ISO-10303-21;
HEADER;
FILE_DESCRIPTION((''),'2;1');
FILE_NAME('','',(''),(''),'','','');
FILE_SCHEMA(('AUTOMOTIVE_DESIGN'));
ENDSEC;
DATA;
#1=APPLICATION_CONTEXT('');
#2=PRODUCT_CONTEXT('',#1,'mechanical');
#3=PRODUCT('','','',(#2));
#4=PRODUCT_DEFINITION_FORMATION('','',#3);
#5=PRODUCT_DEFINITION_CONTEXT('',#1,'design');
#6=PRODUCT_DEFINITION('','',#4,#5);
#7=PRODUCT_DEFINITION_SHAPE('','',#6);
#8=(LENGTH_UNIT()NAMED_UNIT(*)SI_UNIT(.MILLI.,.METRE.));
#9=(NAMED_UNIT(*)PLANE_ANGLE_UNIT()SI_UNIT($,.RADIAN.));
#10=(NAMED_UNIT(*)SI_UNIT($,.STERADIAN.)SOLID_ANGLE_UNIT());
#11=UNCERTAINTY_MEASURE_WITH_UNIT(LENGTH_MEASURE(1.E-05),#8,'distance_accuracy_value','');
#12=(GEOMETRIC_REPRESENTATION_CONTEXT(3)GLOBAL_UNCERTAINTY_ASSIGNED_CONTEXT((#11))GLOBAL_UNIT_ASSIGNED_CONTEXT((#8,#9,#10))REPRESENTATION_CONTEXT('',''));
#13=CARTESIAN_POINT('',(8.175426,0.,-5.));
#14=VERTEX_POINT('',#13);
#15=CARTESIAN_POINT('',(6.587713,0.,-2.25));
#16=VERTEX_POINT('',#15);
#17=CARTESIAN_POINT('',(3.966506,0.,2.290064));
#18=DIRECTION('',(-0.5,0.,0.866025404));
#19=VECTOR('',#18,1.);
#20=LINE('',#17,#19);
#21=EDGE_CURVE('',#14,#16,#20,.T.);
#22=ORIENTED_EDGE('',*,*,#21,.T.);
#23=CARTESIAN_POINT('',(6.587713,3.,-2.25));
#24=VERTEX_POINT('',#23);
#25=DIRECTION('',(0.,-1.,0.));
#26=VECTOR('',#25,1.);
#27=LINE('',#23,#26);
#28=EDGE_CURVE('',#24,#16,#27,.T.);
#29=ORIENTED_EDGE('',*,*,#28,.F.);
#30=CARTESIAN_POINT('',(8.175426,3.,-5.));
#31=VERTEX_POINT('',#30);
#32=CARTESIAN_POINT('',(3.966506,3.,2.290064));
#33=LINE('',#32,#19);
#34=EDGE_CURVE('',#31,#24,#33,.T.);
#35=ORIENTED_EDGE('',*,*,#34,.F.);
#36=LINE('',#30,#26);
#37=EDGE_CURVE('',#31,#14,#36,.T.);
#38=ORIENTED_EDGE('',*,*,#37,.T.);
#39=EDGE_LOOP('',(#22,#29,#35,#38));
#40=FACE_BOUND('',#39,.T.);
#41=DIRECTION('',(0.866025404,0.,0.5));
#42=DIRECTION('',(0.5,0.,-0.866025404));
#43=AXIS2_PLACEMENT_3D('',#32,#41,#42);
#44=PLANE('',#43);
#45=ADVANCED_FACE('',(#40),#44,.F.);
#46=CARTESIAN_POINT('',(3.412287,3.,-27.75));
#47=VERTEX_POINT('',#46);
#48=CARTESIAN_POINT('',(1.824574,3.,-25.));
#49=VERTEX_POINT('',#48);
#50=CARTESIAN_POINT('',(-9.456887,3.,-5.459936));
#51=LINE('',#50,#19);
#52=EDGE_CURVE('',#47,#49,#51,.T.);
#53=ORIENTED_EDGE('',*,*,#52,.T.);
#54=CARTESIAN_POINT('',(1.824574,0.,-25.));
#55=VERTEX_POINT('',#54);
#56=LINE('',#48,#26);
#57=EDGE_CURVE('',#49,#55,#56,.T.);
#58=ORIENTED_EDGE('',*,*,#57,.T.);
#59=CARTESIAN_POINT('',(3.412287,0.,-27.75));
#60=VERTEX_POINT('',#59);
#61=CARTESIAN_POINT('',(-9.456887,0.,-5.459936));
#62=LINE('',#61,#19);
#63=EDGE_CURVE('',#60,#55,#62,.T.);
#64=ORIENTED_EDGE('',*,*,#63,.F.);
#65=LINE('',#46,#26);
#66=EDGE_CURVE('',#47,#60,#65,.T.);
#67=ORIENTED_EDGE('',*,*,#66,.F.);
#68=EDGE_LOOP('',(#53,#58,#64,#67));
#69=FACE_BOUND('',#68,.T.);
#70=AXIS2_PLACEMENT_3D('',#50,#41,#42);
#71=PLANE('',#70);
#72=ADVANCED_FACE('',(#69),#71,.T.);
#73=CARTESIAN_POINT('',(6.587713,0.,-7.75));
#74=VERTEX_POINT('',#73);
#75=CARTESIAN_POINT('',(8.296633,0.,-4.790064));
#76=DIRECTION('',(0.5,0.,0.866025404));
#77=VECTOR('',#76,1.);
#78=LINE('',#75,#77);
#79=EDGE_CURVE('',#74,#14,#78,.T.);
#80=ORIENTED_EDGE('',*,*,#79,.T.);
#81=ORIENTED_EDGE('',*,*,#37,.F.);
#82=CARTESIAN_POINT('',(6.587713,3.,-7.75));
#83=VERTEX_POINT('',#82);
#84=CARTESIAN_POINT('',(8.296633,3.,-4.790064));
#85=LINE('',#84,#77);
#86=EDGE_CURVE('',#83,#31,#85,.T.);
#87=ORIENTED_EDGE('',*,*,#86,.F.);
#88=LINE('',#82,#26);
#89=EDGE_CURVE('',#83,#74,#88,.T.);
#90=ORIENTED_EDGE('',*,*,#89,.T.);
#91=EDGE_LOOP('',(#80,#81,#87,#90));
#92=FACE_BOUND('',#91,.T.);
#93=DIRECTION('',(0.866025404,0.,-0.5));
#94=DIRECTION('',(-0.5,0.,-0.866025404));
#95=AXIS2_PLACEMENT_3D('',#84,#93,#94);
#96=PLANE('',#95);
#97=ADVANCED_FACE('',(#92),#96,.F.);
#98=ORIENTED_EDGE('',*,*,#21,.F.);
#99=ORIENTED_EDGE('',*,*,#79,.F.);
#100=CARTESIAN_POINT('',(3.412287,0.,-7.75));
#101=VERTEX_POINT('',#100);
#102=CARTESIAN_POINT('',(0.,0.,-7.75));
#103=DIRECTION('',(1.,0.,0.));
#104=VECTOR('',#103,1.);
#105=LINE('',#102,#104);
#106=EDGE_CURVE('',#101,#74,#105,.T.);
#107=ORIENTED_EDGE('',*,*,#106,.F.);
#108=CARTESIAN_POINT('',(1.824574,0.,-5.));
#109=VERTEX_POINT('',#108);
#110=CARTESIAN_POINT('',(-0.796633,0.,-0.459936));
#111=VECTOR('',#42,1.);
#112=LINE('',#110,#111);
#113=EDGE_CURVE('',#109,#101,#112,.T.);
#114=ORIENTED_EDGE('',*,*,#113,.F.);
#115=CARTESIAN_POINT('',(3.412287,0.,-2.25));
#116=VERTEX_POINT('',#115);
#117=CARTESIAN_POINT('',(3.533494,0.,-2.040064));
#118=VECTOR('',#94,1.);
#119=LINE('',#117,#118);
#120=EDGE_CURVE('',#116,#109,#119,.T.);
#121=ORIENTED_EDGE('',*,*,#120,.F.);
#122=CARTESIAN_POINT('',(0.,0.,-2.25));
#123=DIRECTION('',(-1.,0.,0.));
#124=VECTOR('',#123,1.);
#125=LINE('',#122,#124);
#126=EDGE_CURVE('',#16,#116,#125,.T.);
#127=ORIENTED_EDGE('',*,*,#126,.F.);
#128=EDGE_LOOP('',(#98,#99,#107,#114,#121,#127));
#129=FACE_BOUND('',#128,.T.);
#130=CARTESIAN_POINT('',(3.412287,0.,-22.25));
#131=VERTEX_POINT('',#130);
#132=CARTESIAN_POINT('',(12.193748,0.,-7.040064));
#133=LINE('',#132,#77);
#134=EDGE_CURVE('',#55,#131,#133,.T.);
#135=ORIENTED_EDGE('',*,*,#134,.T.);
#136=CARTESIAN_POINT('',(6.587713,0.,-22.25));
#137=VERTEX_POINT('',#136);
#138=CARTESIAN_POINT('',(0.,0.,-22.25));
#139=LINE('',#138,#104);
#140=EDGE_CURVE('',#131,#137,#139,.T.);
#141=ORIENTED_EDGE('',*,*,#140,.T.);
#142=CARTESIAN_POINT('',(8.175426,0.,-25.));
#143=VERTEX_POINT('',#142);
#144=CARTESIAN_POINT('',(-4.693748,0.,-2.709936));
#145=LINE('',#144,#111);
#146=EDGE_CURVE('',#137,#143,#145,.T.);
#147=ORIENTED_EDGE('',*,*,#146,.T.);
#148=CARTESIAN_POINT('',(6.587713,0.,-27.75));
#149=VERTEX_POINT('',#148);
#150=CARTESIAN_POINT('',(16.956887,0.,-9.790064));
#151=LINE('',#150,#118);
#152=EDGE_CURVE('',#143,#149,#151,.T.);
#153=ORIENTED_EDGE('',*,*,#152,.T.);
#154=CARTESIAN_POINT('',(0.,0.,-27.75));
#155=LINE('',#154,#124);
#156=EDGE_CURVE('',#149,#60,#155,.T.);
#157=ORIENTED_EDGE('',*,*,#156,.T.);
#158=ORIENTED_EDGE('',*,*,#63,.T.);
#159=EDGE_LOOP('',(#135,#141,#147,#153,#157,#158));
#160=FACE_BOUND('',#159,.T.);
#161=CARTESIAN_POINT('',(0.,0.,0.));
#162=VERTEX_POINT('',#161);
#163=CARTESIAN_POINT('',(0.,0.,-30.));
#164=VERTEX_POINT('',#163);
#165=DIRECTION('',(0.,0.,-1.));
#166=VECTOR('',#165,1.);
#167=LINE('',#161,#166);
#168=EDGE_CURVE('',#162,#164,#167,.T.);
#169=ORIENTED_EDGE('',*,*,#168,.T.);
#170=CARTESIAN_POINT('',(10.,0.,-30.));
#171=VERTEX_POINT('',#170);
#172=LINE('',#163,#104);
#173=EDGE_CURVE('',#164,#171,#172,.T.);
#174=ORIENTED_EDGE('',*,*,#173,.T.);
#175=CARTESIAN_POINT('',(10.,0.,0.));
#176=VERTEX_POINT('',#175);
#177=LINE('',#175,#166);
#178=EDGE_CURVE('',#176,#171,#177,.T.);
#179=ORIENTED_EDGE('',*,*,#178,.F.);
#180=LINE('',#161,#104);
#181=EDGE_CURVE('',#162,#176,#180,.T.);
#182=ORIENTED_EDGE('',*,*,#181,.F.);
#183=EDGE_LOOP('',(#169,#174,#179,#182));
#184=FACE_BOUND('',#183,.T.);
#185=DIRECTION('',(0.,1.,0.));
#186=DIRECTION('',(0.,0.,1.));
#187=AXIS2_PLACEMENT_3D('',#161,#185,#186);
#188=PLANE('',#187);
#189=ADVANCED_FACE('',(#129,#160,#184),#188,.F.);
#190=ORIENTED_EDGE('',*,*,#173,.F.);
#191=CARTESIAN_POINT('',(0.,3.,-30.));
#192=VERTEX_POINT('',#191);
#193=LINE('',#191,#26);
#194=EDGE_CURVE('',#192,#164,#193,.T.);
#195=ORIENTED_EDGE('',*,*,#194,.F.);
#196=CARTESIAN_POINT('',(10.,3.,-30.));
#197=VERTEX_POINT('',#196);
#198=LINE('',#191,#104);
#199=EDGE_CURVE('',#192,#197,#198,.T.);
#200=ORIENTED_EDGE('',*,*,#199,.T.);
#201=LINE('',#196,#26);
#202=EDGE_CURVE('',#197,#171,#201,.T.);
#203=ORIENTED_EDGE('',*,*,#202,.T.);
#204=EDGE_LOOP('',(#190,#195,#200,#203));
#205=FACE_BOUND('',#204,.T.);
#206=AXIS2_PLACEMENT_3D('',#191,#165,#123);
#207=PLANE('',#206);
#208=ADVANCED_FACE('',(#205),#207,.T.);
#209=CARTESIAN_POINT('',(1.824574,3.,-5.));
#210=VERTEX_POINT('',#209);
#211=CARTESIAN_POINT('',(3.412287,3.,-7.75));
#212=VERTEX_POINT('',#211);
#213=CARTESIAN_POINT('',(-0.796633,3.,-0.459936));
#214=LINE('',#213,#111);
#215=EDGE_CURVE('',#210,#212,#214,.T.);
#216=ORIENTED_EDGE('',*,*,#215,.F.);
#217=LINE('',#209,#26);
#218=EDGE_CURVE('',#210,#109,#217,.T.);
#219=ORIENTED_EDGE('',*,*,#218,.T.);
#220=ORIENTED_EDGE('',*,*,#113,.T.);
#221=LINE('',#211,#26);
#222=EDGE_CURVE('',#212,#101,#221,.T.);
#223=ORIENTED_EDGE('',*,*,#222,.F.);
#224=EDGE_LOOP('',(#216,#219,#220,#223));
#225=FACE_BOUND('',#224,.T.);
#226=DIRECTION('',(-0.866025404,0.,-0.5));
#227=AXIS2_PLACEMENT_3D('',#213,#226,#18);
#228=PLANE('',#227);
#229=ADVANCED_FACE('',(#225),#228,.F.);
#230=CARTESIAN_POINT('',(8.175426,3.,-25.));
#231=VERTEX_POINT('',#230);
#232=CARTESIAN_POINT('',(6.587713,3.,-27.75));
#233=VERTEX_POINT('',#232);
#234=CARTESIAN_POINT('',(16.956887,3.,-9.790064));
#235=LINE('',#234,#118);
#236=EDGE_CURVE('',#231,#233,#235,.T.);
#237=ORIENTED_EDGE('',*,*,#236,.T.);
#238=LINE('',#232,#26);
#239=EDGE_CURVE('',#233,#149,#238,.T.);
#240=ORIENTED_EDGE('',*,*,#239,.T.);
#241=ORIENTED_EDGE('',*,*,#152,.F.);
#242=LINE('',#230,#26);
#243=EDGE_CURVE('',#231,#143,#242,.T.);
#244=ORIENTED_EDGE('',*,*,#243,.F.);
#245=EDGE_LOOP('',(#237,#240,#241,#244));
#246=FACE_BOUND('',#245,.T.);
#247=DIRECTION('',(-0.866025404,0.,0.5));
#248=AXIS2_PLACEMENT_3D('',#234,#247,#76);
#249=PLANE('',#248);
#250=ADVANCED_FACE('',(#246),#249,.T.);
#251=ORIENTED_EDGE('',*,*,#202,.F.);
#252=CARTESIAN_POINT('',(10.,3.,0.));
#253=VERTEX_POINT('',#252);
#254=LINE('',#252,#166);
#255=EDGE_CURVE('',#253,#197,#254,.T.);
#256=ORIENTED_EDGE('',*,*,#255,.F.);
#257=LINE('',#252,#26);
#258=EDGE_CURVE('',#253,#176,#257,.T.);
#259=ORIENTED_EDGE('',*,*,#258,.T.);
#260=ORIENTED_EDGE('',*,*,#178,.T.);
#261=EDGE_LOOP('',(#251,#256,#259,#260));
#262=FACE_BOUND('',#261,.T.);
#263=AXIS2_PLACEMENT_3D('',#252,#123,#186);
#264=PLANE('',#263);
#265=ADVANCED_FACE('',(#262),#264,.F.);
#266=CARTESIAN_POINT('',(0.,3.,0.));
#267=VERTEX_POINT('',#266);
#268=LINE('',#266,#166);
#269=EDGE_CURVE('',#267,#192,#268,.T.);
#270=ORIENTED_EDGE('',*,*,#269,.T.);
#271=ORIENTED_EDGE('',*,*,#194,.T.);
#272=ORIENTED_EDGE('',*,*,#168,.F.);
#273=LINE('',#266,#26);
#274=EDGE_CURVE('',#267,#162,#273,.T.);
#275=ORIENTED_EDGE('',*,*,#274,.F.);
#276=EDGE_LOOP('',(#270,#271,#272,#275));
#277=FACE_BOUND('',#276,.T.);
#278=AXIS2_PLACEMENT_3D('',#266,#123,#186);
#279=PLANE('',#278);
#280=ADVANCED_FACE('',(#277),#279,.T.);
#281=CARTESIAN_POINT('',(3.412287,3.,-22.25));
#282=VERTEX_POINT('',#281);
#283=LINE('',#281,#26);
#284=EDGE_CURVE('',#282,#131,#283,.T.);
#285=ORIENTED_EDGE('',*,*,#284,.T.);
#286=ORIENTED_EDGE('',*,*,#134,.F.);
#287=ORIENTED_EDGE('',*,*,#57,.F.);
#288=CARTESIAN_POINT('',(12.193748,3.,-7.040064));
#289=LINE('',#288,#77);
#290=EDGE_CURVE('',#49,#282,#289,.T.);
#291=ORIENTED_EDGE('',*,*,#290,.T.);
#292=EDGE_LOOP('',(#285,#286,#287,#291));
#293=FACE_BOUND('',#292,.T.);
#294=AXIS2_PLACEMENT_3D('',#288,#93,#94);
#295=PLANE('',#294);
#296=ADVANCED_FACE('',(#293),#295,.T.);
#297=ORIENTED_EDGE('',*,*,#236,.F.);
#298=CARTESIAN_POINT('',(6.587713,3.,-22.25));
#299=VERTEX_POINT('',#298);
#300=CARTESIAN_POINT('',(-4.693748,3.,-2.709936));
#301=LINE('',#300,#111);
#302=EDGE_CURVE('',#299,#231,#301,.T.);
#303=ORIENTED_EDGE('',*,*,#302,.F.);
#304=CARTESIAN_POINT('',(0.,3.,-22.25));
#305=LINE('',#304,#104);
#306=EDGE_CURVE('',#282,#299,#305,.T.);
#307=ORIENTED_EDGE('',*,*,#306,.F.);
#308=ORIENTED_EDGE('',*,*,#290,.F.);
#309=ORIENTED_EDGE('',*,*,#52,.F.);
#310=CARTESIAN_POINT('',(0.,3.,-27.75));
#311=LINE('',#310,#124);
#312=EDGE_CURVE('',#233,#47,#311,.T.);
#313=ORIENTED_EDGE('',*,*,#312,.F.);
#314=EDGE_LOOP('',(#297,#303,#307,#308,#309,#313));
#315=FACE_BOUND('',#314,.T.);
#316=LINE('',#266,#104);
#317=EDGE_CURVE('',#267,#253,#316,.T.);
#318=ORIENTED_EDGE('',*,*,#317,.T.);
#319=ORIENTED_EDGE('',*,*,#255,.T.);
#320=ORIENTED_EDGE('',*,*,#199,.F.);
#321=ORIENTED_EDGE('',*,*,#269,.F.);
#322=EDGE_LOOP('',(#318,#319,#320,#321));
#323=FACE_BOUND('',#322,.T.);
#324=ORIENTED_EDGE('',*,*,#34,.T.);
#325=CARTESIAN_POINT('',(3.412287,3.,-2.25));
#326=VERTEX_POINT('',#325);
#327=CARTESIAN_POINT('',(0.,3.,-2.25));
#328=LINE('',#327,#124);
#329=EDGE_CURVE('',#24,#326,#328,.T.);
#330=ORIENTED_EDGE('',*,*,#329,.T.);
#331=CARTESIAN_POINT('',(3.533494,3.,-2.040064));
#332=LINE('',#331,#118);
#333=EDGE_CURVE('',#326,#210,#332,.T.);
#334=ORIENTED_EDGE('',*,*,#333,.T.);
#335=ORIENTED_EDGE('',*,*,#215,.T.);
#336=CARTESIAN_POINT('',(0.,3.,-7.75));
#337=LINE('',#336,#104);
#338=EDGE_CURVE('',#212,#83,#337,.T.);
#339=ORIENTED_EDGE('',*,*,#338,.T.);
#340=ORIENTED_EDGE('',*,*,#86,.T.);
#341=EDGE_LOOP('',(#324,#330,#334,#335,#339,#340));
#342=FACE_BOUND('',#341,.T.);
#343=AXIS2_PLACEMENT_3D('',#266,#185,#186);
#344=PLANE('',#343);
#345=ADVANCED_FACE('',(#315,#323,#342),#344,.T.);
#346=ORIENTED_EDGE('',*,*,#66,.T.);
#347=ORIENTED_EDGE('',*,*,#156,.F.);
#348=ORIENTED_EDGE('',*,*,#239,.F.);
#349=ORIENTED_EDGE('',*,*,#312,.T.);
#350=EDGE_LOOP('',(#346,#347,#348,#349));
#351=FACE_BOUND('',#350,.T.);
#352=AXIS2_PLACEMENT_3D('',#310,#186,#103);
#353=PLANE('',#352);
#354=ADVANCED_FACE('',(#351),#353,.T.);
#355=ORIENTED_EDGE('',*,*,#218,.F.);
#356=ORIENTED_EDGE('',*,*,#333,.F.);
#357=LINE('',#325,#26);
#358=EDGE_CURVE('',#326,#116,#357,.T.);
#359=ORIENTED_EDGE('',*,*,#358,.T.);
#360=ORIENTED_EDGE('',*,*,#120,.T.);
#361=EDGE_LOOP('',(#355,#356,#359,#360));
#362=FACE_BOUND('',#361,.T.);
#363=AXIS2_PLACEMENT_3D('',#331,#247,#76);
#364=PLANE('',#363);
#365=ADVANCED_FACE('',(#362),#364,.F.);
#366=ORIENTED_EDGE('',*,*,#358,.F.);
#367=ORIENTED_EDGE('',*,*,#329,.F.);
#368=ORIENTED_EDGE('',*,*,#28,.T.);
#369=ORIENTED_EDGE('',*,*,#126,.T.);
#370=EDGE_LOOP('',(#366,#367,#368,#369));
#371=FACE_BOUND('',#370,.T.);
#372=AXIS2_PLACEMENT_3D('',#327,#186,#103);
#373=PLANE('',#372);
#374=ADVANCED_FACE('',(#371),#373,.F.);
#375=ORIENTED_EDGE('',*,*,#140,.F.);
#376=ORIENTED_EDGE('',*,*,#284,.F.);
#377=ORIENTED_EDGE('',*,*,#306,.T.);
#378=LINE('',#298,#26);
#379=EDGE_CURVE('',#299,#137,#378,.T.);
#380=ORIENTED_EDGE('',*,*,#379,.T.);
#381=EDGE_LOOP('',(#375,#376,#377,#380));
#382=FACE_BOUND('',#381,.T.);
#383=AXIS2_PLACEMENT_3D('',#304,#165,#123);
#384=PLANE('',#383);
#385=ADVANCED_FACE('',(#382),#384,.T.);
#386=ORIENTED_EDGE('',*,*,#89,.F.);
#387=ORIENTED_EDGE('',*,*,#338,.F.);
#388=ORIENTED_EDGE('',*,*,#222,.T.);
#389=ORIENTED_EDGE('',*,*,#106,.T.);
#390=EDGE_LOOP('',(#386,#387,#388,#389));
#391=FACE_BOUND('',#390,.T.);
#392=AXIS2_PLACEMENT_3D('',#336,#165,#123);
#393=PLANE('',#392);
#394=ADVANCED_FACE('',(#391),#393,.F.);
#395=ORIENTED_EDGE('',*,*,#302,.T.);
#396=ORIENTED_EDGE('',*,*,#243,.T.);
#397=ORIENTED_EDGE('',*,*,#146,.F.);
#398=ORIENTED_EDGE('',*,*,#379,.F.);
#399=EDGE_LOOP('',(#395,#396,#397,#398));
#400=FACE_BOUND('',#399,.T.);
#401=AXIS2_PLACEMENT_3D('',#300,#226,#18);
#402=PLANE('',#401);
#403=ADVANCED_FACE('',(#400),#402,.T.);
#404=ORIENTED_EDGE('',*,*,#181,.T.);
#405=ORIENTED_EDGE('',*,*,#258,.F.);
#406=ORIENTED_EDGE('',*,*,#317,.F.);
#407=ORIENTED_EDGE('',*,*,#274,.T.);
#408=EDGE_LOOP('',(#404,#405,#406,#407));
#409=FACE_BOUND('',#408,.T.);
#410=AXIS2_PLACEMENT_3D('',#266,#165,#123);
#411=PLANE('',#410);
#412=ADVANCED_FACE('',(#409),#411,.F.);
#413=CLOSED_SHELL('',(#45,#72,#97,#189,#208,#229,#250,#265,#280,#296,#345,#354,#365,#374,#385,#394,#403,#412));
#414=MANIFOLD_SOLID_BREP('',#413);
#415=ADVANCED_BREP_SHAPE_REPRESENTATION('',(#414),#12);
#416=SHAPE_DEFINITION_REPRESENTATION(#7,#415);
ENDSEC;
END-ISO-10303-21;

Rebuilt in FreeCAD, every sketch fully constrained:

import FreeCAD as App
import Part
import Sketcher
from FreeCAD import Vector
Q = App.Units.Quantity


def add_polygon(sketch, points):
    """Adds a closed chain of lines whose ends are joined by coincident constraints."""
    first, n = sketch.GeometryCount, len(points)
    for a, b in zip(points, points[1:] + points[:1]):
        sketch.addGeometry(Part.LineSegment(App.Vector(*a, 0), App.Vector(*b, 0)), False)
    for i in range(n):
        sketch.addConstraint(Sketcher.Constraint("Coincident", first + i, 2, first + (i + 1) % n, 1))

doc = App.newDocument("Part")
body = doc.addObject("PartDesign::Body", "Body")

sketch1 = doc.addObject("Sketcher::SketchObject", "Sketch")
body.addObject(sketch1)
sketch1.AttachmentSupport = (doc.XZ_Plane, [""])
sketch1.MapMode = "FlatFace"
add_polygon(sketch1, [(0, -30), (0, 0), (10, 0), (10, -30)])
add_polygon(sketch1, [(3.412287, -2.25), (1.824574, -5), (3.412287, -7.75), (6.587713, -7.75), (8.175426, -5), (6.587713, -2.25)])
add_polygon(sketch1, [(3.412287, -22.25), (1.824574, -25), (3.412287, -27.75), (6.587713, -27.75), (8.175426, -25), (6.587713, -22.25)])
sketch1.addConstraint([
    Sketcher.Constraint("Vertical", 0),
    Sketcher.Constraint("Horizontal", 1),
    Sketcher.Constraint("Vertical", 2),
    Sketcher.Constraint("Horizontal", 3),
    Sketcher.Constraint("Horizontal", 6),
    Sketcher.Constraint("Horizontal", 9),
    Sketcher.Constraint("Horizontal", 12),
    Sketcher.Constraint("Horizontal", 15),
    Sketcher.Constraint("Coincident", 0, 2, -1, 1),
    Sketcher.Constraint("Parallel", 4, 7),
    Sketcher.Constraint("Parallel", 5, 8),
    Sketcher.Constraint("Parallel", 7, 10),
    Sketcher.Constraint("Parallel", 8, 11),
    Sketcher.Constraint("Parallel", 10, 13),
    Sketcher.Constraint("Parallel", 11, 14),
    Sketcher.Constraint("Horizontal", 4, 2, 7, 2),
    Sketcher.Constraint("Horizontal", 10, 2, 13, 2),
    Sketcher.Constraint("Vertical", 6, 2, 8, 2),
    Sketcher.Constraint("Vertical", 5, 2, 9, 2),
    Sketcher.Constraint("Vertical", 4, 2, 10, 2),
    Sketcher.Constraint("Vertical", 9, 2, 11, 2),
    Sketcher.Constraint("Vertical", 8, 2, 12, 2),
    Sketcher.Constraint("Vertical", 12, 2, 14, 2),
    Sketcher.Constraint("DistanceX", 1, 1, 1, 2, 10.0),
    Sketcher.Constraint("DistanceY", 0, 1, 0, 2, 30.0),
    Sketcher.Constraint("Angle", 4, Q("-120 deg")),
    Sketcher.Constraint("DistanceY", 4, 2, -1, 1, 5.0),
    Sketcher.Constraint("DistanceY", 10, 2, -1, 1, 25.0),
    Sketcher.Constraint("DistanceY", 6, 2, 8, 2, 5.5),
    Sketcher.Constraint("DistanceX", 6, 1, 6, 2, 3.175426),
    Sketcher.Constraint("DistanceX", -1, 1, 4, 2, 1.824574),
])
pad1 = doc.addObject("PartDesign::Pad", "Pad")
body.addObject(pad1)
pad1.Profile = sketch1
pad1.Length = 3
pad1.Reversed = True

doc.recompute()
